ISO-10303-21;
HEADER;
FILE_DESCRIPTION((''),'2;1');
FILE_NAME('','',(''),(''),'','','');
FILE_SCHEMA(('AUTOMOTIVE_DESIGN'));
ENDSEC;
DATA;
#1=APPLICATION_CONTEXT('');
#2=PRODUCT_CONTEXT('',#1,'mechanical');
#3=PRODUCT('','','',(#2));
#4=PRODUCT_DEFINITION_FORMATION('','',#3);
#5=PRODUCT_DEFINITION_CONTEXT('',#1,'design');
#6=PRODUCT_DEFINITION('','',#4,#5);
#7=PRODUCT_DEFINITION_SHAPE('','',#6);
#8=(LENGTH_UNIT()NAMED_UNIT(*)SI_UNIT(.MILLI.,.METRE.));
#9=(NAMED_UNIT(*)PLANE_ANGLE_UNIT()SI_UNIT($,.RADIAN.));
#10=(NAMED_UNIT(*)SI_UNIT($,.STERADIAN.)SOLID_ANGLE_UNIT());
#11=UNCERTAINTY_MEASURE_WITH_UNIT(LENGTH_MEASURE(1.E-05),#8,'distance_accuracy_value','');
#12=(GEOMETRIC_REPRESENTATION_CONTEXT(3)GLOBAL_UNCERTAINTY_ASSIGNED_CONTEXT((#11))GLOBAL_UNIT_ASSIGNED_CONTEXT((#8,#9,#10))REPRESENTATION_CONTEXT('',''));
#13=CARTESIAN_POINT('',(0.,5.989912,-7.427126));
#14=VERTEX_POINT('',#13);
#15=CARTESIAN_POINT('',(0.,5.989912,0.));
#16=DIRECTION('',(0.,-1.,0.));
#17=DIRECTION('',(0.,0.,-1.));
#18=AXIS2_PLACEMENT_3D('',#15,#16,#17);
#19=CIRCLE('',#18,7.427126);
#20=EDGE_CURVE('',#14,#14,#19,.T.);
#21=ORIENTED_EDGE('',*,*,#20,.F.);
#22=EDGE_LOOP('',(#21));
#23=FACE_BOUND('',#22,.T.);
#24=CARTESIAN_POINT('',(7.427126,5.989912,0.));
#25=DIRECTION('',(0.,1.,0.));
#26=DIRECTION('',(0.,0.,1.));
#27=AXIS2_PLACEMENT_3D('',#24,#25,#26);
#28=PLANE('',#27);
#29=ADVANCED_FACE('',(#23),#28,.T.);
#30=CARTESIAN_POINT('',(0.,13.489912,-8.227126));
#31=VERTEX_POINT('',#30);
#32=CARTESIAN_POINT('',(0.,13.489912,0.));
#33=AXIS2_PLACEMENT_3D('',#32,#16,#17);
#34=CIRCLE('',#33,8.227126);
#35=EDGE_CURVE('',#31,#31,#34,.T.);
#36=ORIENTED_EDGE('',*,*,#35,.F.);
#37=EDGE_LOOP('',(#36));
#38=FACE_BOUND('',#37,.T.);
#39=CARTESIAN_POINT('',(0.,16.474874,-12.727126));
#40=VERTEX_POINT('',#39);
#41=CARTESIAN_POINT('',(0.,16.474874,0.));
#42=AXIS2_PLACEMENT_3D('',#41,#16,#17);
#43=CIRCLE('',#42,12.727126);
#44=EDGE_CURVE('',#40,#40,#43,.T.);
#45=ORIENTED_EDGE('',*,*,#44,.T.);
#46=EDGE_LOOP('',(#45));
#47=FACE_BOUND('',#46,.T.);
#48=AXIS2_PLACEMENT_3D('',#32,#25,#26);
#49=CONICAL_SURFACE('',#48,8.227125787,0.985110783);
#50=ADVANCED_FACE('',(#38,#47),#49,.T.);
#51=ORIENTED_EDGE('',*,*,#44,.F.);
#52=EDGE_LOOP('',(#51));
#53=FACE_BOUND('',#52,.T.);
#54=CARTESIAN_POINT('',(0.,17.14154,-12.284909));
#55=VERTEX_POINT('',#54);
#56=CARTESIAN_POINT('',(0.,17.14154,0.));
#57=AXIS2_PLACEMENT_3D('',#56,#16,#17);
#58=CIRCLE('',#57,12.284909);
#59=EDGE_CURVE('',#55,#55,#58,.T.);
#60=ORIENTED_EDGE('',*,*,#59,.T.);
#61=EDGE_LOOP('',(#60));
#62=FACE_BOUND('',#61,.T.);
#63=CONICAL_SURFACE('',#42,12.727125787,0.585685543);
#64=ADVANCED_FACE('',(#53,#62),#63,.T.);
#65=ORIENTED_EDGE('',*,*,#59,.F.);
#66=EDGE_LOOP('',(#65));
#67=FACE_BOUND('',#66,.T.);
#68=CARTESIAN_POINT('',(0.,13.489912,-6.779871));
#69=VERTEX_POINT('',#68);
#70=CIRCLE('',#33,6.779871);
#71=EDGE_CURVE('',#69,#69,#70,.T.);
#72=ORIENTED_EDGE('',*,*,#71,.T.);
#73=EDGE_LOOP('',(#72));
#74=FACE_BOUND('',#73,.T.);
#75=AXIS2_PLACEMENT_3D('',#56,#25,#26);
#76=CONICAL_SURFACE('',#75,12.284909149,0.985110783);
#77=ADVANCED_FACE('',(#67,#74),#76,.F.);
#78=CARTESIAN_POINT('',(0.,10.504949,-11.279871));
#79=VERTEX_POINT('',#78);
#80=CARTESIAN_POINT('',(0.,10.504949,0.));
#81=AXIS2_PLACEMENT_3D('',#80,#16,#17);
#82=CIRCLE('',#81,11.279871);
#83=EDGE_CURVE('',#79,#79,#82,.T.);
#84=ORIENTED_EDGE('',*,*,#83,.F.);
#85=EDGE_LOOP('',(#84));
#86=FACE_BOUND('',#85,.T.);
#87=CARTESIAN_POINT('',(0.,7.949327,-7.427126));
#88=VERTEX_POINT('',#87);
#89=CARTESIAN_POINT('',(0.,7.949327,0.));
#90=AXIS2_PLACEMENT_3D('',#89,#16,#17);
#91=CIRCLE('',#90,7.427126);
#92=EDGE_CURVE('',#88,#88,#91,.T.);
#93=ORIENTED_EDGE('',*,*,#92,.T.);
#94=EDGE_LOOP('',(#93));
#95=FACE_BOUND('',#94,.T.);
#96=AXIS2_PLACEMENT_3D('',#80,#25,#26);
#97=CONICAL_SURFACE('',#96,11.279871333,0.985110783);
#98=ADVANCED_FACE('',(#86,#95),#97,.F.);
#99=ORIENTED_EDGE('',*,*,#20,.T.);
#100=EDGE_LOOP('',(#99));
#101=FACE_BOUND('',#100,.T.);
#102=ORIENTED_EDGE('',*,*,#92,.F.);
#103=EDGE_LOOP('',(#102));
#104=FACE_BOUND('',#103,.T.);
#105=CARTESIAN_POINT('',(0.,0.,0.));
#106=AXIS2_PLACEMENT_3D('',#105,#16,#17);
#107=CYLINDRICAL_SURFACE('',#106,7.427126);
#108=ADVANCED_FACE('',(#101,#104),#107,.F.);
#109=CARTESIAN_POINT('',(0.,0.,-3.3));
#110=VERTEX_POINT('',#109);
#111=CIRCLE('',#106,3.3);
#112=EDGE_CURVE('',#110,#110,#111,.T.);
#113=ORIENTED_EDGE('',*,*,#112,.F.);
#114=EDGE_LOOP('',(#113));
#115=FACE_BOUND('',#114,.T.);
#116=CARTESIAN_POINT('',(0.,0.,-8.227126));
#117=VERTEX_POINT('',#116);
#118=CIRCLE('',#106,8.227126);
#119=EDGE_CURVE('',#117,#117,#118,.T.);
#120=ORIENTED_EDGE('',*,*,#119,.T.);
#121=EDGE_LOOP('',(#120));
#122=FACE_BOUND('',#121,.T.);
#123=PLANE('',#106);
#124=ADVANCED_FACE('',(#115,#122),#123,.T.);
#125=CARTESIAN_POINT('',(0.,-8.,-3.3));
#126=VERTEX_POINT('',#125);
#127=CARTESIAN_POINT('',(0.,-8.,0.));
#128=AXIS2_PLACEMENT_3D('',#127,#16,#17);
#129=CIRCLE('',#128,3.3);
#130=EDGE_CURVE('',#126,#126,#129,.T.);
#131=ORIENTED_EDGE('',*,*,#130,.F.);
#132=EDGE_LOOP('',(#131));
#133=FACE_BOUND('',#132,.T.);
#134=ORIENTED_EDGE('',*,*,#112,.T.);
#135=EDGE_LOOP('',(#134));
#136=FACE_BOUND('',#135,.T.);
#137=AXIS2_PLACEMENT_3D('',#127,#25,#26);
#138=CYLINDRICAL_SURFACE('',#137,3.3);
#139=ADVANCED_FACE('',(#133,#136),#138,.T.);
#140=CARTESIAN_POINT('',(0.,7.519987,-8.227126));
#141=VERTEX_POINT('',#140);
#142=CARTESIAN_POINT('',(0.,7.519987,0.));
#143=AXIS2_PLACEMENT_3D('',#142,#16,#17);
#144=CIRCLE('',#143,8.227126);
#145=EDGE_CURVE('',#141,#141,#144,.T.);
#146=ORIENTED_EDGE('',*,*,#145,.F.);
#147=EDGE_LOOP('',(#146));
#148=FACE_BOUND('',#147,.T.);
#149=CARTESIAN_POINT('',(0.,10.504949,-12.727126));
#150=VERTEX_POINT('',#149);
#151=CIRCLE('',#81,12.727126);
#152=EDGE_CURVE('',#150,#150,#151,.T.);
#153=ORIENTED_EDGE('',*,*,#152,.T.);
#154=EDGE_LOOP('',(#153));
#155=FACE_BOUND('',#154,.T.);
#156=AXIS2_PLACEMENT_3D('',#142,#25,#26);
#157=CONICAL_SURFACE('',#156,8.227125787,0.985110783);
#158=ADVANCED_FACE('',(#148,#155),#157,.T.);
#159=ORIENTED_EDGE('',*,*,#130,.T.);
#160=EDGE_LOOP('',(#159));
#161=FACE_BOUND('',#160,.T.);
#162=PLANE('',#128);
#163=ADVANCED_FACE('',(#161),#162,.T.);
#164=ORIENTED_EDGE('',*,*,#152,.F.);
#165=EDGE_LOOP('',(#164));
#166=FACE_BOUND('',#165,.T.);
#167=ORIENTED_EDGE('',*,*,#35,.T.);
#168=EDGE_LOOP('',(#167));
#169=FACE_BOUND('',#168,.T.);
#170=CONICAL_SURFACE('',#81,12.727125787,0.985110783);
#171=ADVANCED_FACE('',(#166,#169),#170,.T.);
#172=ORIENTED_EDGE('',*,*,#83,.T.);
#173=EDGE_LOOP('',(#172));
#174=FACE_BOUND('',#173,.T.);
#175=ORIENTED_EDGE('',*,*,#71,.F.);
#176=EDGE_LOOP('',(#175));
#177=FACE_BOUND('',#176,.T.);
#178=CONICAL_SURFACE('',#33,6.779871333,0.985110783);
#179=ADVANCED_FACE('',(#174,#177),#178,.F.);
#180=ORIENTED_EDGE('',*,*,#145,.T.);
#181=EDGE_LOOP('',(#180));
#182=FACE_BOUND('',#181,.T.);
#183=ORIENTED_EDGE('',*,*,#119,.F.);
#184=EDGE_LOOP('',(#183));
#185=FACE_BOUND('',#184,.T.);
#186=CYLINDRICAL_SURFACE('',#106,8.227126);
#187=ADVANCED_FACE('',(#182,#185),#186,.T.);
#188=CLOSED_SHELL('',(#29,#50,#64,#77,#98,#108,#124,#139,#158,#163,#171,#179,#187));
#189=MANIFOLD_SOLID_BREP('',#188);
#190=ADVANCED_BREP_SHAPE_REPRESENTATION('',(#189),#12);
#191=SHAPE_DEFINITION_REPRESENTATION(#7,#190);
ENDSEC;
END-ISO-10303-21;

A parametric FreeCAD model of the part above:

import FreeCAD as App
import Part
import Sketcher

V = App.Vector

doc = App.newDocument("Part")
body = doc.addObject("PartDesign::Body", "Body")

# Sketch on XY plane
sketch1 = body.newObject("Sketcher::SketchObject", "Sketch")
sketch1.AttachmentSupport = (doc.getObject("XY_Plane"), [""])
sketch1.MapMode = "FlatFace"
sketch1.addGeometry(Part.LineSegment(V(0, 0, 0), V(8.2, 0, 0)), False)
sketch1.addGeometry(Part.LineSegment(V(8.2, 0, 0), V(8.2, 7.5, 0)), False)
sketch1.addGeometry(Part.LineSegment(V(8.2, 7.5, 0), V(12.7, 10.5, 0)), False)
sketch1.addGeometry(Part.LineSegment(V(12.7, 10.5, 0), V(8.2, 13.5, 0)), False)
sketch1.addGeometry(Part.LineSegment(V(8.2, 13.5, 0), V(12.7, 16.5, 0)), False)
sketch1.addGeometry(Part.LineSegment(V(12.7, 16.5, 0), V(12.3, 17.1, 0)), False)
sketch1.addGeometry(Part.LineSegment(V(12.3, 17.1, 0), V(6.8, 13.5, 0)), False)
sketch1.addGeometry(Part.LineSegment(V(6.8, 13.5, 0), V(11.3, 10.5, 0)), False)
sketch1.addGeometry(Part.LineSegment(V(11.3, 10.5, 0), V(7.4, 7.9, 0)), False)
sketch1.addGeometry(Part.LineSegment(V(7.4, 7.9, 0), V(7.4, 6, 0)), False)
sketch1.addGeometry(Part.LineSegment(V(7.4, 6, 0), V(0, 6, 0)), False)
sketch1.addGeometry(Part.LineSegment(V(0, 6, 0), V(0, 0, 0)), False)
sketch1.addConstraint(Sketcher.Constraint("Coincident", 0, 2, 1, 1))
sketch1.addConstraint(Sketcher.Constraint("Coincident", 1, 2, 2, 1))
sketch1.addConstraint(Sketcher.Constraint("Coincident", 2, 2, 3, 1))
sketch1.addConstraint(Sketcher.Constraint("Coincident", 3, 2, 4, 1))
sketch1.addConstraint(Sketcher.Constraint("Coincident", 4, 2, 5, 1))
sketch1.addConstraint(Sketcher.Constraint("Coincident", 5, 2, 6, 1))
sketch1.addConstraint(Sketcher.Constraint("Coincident", 6, 2, 7, 1))
sketch1.addConstraint(Sketcher.Constraint("Coincident", 7, 2, 8, 1))
sketch1.addConstraint(Sketcher.Constraint("Coincident", 8, 2, 9, 1))
sketch1.addConstraint(Sketcher.Constraint("Coincident", 9, 2, 10, 1))
sketch1.addConstraint(Sketcher.Constraint("Coincident", 10, 2, 11, 1))
sketch1.addConstraint(Sketcher.Constraint("Coincident", 11, 2, 0, 1))
sketch1.addConstraint(Sketcher.Constraint("Horizontal", 0))
sketch1.addConstraint(Sketcher.Constraint("Vertical", 1))
sketch1.addConstraint(Sketcher.Constraint("Vertical", 9))
sketch1.addConstraint(Sketcher.Constraint("Horizontal", 10))
sketch1.addConstraint(Sketcher.Constraint("Vertical", 11))
sketch1.addConstraint(Sketcher.Constraint("Coincident", 11, 2, -1, 1))
sketch1.addConstraint(Sketcher.Constraint("Parallel", 2, 4))
sketch1.addConstraint(Sketcher.Constraint("Perpendicular", 4, 5))
sketch1.addConstraint(Sketcher.Constraint("Perpendicular", 5, 6))
sketch1.addConstraint(Sketcher.Constraint("Parallel", 3, 7))
sketch1.addConstraint(Sketcher.Constraint("Parallel", 6, 8))
sketch1.addConstraint(Sketcher.Constraint("Horizontal", 3, 2, 6, 2))
sketch1.addConstraint(Sketcher.Constraint("Horizontal", 2, 2, 7, 2))
sketch1.addConstraint(Sketcher.Constraint("Vertical", 1, 2, 3, 2))
sketch1.addConstraint(Sketcher.Constraint("Vertical", 2, 2, 4, 2))
sketch1.addConstraint(Sketcher.Constraint("Equal", 2, 3))
sketch1.addConstraint(Sketcher.Constraint("Distance", 2, 5.4))
sketch1.addConstraint(Sketcher.Constraint("Distance", 5, 0.8))
sketch1.addConstraint(Sketcher.Constraint("DistanceX", 1, 2, 2, 2, 4.5))
sketch1.addConstraint(Sketcher.Constraint("DistanceX", 8, 2, 1, 2, 0.8))
sketch1.addConstraint(Sketcher.Constraint("DistanceY", 10, 2, 6, 2, 7.5))
sketch1.addConstraint(Sketcher.Constraint("DistanceY", 11, 2, 11, 1, 5.989912))
sketch1.addConstraint(Sketcher.Constraint("DistanceX", 0, 1, 0, 2, 8.227126))
revolution = body.newObject("PartDesign::Revolution", "Revolution")
revolution.Profile = sketch1
revolution.ReferenceAxis = (sketch1, ["V_Axis"])
revolution.Angle = 360

# Sketch on XZ plane
sketch2 = body.newObject("Sketcher::SketchObject", "Sketch001")
sketch2.AttachmentSupport = (doc.getObject("XZ_Plane"), [""])
sketch2.MapMode = "FlatFace"
sketch2.addGeometry(Part.Circle(V(0, 0, 0), V(0, 0, 1), 3.3), False)
sketch2.addConstraint(Sketcher.Constraint("Coincident", 0, 3, -1, 1))
sketch2.addConstraint(Sketcher.Constraint("Diameter", 0, 6.6))
pad1 = body.newObject("PartDesign::Pad", "Pad")
pad1.Profile = sketch2
pad1.Length = 8

doc.recompute()
